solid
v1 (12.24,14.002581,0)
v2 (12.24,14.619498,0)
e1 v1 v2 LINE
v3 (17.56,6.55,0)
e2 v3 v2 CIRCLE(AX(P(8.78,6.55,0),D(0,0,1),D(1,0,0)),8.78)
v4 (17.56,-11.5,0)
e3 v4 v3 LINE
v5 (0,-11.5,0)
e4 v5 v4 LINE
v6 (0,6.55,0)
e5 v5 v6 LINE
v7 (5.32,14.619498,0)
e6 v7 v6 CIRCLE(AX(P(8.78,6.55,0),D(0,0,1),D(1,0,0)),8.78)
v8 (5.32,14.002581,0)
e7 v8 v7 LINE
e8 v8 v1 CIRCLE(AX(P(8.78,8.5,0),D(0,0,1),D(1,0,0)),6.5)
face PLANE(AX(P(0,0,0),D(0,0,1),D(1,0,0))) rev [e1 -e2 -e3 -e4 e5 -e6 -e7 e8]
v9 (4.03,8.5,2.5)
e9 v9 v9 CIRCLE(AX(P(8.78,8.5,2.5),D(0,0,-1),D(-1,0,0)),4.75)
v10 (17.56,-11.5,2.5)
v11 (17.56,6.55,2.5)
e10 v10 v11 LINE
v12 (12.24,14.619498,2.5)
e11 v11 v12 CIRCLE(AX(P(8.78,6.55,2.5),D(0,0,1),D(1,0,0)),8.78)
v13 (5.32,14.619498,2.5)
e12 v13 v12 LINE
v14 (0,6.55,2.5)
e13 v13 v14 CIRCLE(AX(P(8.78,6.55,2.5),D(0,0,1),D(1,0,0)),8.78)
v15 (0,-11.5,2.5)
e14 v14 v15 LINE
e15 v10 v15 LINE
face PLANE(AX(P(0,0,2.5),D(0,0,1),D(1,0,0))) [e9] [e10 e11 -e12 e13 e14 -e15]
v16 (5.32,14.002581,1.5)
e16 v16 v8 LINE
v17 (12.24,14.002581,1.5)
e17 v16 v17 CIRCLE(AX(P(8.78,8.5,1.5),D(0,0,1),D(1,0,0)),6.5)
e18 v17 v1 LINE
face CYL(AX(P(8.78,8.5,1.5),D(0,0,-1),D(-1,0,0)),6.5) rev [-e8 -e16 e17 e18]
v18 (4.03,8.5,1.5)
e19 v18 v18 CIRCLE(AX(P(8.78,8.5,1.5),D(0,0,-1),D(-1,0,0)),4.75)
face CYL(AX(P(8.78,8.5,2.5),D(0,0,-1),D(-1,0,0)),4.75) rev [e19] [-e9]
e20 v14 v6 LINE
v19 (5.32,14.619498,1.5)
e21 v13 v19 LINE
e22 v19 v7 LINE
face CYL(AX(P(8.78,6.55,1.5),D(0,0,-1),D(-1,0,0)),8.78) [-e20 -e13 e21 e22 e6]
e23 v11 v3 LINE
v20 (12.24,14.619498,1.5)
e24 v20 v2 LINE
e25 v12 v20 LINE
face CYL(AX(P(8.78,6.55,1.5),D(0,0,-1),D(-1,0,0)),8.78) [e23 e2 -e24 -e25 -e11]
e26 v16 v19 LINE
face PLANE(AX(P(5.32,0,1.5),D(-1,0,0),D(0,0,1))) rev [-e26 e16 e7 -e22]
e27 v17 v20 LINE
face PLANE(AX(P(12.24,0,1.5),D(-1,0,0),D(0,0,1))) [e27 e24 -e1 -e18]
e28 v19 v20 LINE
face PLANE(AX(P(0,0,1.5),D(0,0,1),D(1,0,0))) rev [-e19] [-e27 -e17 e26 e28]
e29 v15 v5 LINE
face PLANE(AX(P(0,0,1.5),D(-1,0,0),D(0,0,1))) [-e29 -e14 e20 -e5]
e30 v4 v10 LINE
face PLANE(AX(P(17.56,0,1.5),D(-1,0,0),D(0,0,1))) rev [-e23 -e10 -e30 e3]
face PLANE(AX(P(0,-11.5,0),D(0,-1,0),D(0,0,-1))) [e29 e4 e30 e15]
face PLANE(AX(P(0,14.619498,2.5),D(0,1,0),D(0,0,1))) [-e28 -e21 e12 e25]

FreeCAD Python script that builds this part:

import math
import FreeCAD as App
import Part
import Sketcher

V = App.Vector
Q = App.Units.Quantity

doc = App.newDocument("Part")
body = doc.addObject("PartDesign::Body", "Body")

sketch1 = body.newObject("Sketcher::SketchObject", "Sketch")
sketch1.AttachmentSupport = (doc.getObject("XY_Plane"), [""])
sketch1.MapMode = "FlatFace"
sketch1.addGeometry(Part.ArcOfCircle(Part.Circle(V(8.8, 8.5, 0), V(0, 0, 1), 6.5), math.radians(-163), math.radians(-17)), False)
sketch1.addGeometry(Part.ArcOfCircle(Part.Circle(V(8.8, 8.5, 0), V(0, 0, 1), 6.5), math.radians(122), math.radians(197)), False)
sketch1.addGeometry(Part.LineSegment(V(5.3, 14, 0), V(5.3, 14.6, 0)), False)
sketch1.addGeometry(Part.ArcOfCircle(Part.Circle(V(8.8, 6.5, 0), V(0, 0, 1), 8.8), math.radians(113), math.radians(180)), False)
sketch1.addGeometry(Part.LineSegment(V(0, 6.5, 0), V(0, 0, 0)), False)
sketch1.addGeometry(Part.LineSegment(V(0, 0, 0), V(17.6, 0, 0)), False)
sketch1.addGeometry(Part.LineSegment(V(17.6, 0, 0), V(17.6, 6.5, 0)), False)
sketch1.addGeometry(Part.ArcOfCircle(Part.Circle(V(8.8, 6.5, 0), V(0, 0, 1), 8.8), math.radians(0), math.radians(67)), False)
sketch1.addGeometry(Part.LineSegment(V(12.2, 14.6, 0), V(12.2, 14, 0)), False)
sketch1.addGeometry(Part.ArcOfCircle(Part.Circle(V(8.8, 8.5, 0), V(0, 0, 1), 6.5), math.radians(-17), math.radians(58)), False)
sketch1.addConstraint(Sketcher.Constraint("Tangent", 0, 1, 1, 2))
sketch1.addConstraint(Sketcher.Constraint("Coincident", 1, 1, 2, 1))
sketch1.addConstraint(Sketcher.Constraint("Coincident", 2, 2, 3, 1))
sketch1.addConstraint(Sketcher.Constraint("Tangent", 3, 2, 4, 1))
sketch1.addConstraint(Sketcher.Constraint("Coincident", 4, 2, 5, 1))
sketch1.addConstraint(Sketcher.Constraint("Coincident", 5, 2, 6, 1))
sketch1.addConstraint(Sketcher.Constraint("Tangent", 6, 2, 7, 1))
sketch1.addConstraint(Sketcher.Constraint("Coincident", 7, 2, 8, 1))
sketch1.addConstraint(Sketcher.Constraint("Coincident", 8, 2, 9, 2))
sketch1.addConstraint(Sketcher.Constraint("Tangent", 9, 1, 0, 2))
sketch1.addConstraint(Sketcher.Constraint("Vertical", 2))
sketch1.addConstraint(Sketcher.Constraint("Vertical", 4))
sketch1.addConstraint(Sketcher.Constraint("Horizontal", 5))
sketch1.addConstraint(Sketcher.Constraint("Vertical", 6))
sketch1.addConstraint(Sketcher.Constraint("Vertical", 8))
sketch1.addConstraint(Sketcher.Constraint("Coincident", 4, 2, -1, 1))
sketch1.addConstraint(Sketcher.Constraint("Coincident", 7, 3, 3, 3))
sketch1.addConstraint(Sketcher.Constraint("Equal", 0, 1))
sketch1.addConstraint(Sketcher.Constraint("Equal", 3, 7))
sketch1.addConstraint(Sketcher.Constraint("Equal", 1, 9))
sketch1.addConstraint(Sketcher.Constraint("Horizontal", 7, 3, 0, 1))
sketch1.addConstraint(Sketcher.Constraint("Horizontal", 2, 2, 7, 2))
sketch1.addConstraint(Sketcher.Constraint("Horizontal", 1, 1, 8, 2))
sketch1.addConstraint(Sketcher.Constraint("Horizontal", 6, 2, 9, 1))
sketch1.addConstraint(Sketcher.Constraint("Radius", 0, Q("6.5 mm")))
sketch1.addConstraint(Sketcher.Constraint("Radius", 3, Q("8.78 mm")))
sketch1.addConstraint(Sketcher.Constraint("DistanceY", 4, 2, 4, 1, Q("6.55 mm")))
sketch1.addConstraint(Sketcher.Constraint("DistanceY", -1, 1, 0, 3, Q("8.5 mm")))
sketch1.addConstraint(Sketcher.Constraint("DistanceX", -1, 1, 1, 1, Q("5.32 mm")))
pad1 = body.newObject("PartDesign::Pad", "Pad")
pad1.Profile = sketch1
pad1.Length = 1.5

sketch2 = body.newObject("Sketcher::SketchObject", "Sketch001")
sketch2.AttachmentSupport = (doc.getObject("XY_Plane"), [""])
sketch2.MapMode = "FlatFace"
sketch2.AttachmentOffset = App.Placement(V(0, 0, 1.5), App.Rotation())
sketch2.addGeometry(Part.ArcOfCircle(Part.Circle(V(9, 7, 0), V(0, 0, 1), 9), math.radians(113), math.radians(180)), False)
sketch2.addGeometry(Part.LineSegment(V(0, 7, 0), V(0, 0, 0)), False)
sketch2.addGeometry(Part.LineSegment(V(0, 0, 0), V(18, 0, 0)), False)
sketch2.addGeometry(Part.LineSegment(V(18, 0, 0), V(18, 7, 0)), False)
sketch2.addGeometry(Part.ArcOfCircle(Part.Circle(V(9, 7, 0), V(0, 0, 1), 9), math.radians(0), math.radians(67)), False)
sketch2.addGeometry(Part.LineSegment(V(12, 15, 0), V(5, 15, 0)), False)
sketch2.addConstraint(Sketcher.Constraint("Tangent", 0, 2, 1, 1))
sketch2.addConstraint(Sketcher.Constraint("Coincident", 1, 2, 2, 1))
sketch2.addConstraint(Sketcher.Constraint("Coincident", 2, 2, 3, 1))
sketch2.addConstraint(Sketcher.Constraint("Tangent", 3, 2, 4, 1))
sketch2.addConstraint(Sketcher.Constraint("Coincident", 4, 2, 5, 1))
sketch2.addConstraint(Sketcher.Constraint("Coincident", 5, 2, 0, 1))
sketch2.addConstraint(Sketcher.Constraint("Vertical", 1))
sketch2.addConstraint(Sketcher.Constraint("Horizontal", 2))
sketch2.addConstraint(Sketcher.Constraint("Vertical", 3))
sketch2.addConstraint(Sketcher.Constraint("Horizontal", 5))
sketch2.addConstraint(Sketcher.Constraint("Coincident", 1, 2, -1, 1))
sketch2.addConstraint(Sketcher.Constraint("Coincident", 4, 3, 0, 3))
sketch2.addConstraint(Sketcher.Constraint("Equal", 0, 4))
sketch2.addConstraint(Sketcher.Constraint("Radius", 0, Q("8.78 mm")))
sketch2.addConstraint(Sketcher.Constraint("DistanceX", 5, 2, 5, 1, Q("6.92 mm")))
sketch2.addConstraint(Sketcher.Constraint("DistanceY", 1, 2, 1, 1, Q("6.55 mm")))
pad2 = body.newObject("PartDesign::Pad", "Pad001")
pad2.Profile = sketch2
pad2.Length = 1

sketch3 = body.newObject("Sketcher::SketchObject", "Sketch002")
sketch3.AttachmentSupport = (doc.getObject("XY_Plane"), [""])
sketch3.MapMode = "FlatFace"
sketch3.AttachmentOffset = App.Placement(V(0, 0, 1.5), App.Rotation())
sketch3.addGeometry(Part.Circle(V(8.8, 8.5, 0), V(0, 0, 1), 4.8), False)
sketch3.addConstraint(Sketcher.Constraint("Diameter", 0, Q("9.5 mm")))
sketch3.addConstraint(Sketcher.Constraint("DistanceY", -1, 1, 0, 3, Q("8.5 mm")))
sketch3.addConstraint(Sketcher.Constraint("DistanceX", -1, 1, 0, 3, Q("8.78 mm")))
pocket1 = body.newObject("PartDesign::Pocket", "Pocket")
pocket1.Profile = sketch3
pocket1.Type = "ThroughAll"
pocket1.Reversed = True

sketch4 = body.newObject("Sketcher::SketchObject", "Sketch003")
sketch4.AttachmentSupport = (doc.getObject("XZ_Plane"), [""])
sketch4.MapMode = "FlatFace"
sketch4.addGeometry(Part.LineSegment(V(0, 2.5, 0), V(0, 0, 0)), False)
sketch4.addGeometry(Part.LineSegment(V(0, 0, 0), V(17.6, 0, 0)), False)
sketch4.addGeometry(Part.LineSegment(V(17.6, 0, 0), V(17.6, 2.5, 0)), False)
sketch4.addGeometry(Part.LineSegment(V(17.6, 2.5, 0), V(0, 2.5, 0)), False)
sketch4.addConstraint(Sketcher.Constraint("Coincident", 0, 2, 1, 1))
sketch4.addConstraint(Sketcher.Constraint("Coincident", 1, 2, 2, 1))
sketch4.addConstraint(Sketcher.Constraint("Coincident", 2, 2, 3, 1))
sketch4.addConstraint(Sketcher.Constraint("Coincident", 3, 2, 0, 1))
sketch4.addConstraint(Sketcher.Constraint("Vertical", 0))
sketch4.addConstraint(Sketcher.Constraint("Horizontal", 1))
sketch4.addConstraint(Sketcher.Constraint("Vertical", 2))
sketch4.addConstraint(Sketcher.Constraint("Horizontal", 3))
sketch4.addConstraint(Sketcher.Constraint("Coincident", 0, 2, -1, 1))
sketch4.addConstraint(Sketcher.Constraint("DistanceY", 0, 2, 0, 1, Q("2.5 mm")))
sketch4.addConstraint(Sketcher.Constraint("DistanceX", 1, 1, 1, 2, Q("17.56 mm")))
pad3 = body.newObject("PartDesign::Pad", "Pad002")
pad3.Profile = sketch4
pad3.Length = 0.15

sketch5 = body.newObject("Sketcher::SketchObject", "Sketch004")
sketch5.AttachmentSupport = (doc.getObject("XZ_Plane"), [""])
sketch5.MapMode = "FlatFace"
sketch5.AttachmentOffset = App.Placement(V(0, 0, 0.15), App.Rotation())
sketch5.addGeometry(Part.LineSegment(V(0, 2.5, 0), V(0, 0, 0)), False)
sketch5.addGeometry(Part.LineSegment(V(0, 0, 0), V(17.6, 0, 0)), False)
sketch5.addGeometry(Part.LineSegment(V(17.6, 0, 0), V(17.6, 2.5, 0)), False)
sketch5.addGeometry(Part.LineSegment(V(17.6, 2.5, 0), V(0, 2.5, 0)), False)
sketch5.addConstraint(Sketcher.Constraint("Coincident", 0, 2, 1, 1))
sketch5.addConstraint(Sketcher.Constraint("Coincident", 1, 2, 2, 1))
sketch5.addConstraint(Sketcher.Constraint("Coincident", 2, 2, 3, 1))
sketch5.addConstraint(Sketcher.Constraint("Coincident", 3, 2, 0, 1))
sketch5.addConstraint(Sketcher.Constraint("Vertical", 0))
sketch5.addConstraint(Sketcher.Constraint("Horizontal", 1))
sketch5.addConstraint(Sketcher.Constraint("Vertical", 2))
sketch5.addConstraint(Sketcher.Constraint("Horizontal", 3))
sketch5.addConstraint(Sketcher.Constraint("Coincident", 0, 2, -1, 1))
sketch5.addConstraint(Sketcher.Constraint("DistanceY", 0, 2, 0, 1, Q("2.5 mm")))
sketch5.addConstraint(Sketcher.Constraint("DistanceX", 1, 1, 1, 2, Q("17.56 mm")))
pad4 = body.newObject("PartDesign::Pad", "Pad003")
pad4.Profile = sketch5
pad4.Length = 11.35

doc.recompute()
